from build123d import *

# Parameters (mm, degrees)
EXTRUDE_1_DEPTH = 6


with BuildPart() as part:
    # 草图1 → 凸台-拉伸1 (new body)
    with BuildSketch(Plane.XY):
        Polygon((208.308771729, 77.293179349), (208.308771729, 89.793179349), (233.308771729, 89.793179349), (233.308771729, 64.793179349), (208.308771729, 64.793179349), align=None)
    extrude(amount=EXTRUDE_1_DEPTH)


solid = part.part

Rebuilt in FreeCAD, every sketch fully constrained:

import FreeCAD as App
import Part
import Sketcher
from FreeCAD import Vector
Q = App.Units.Quantity

doc = App.newDocument("Part")
params = doc.addObject("Spreadsheet::Sheet", "Params")
for row, (alias, value) in enumerate([
    ("sketch1_width", "25 mm"),
    ("pad1_length", "6 mm"),
], start=1):
    params.set(f"A{row}", alias)
    params.set(f"B{row}", "=" + value)
    params.setAlias(f"B{row}", alias)

body = doc.addObject("PartDesign::Body", "Body")

# Sketch on XY plane
sketch1 = body.newObject("Sketcher::SketchObject", "Sketch")
sketch1.AttachmentSupport = (doc.getObject("XY_Plane"), [""])
sketch1.MapMode = "FlatFace"
sketch1.addGeometry(Part.LineSegment(Vector(208, 90, 0), Vector(208, 65, 0)), False)
sketch1.addGeometry(Part.LineSegment(Vector(208, 65, 0), Vector(233, 65, 0)), False)
sketch1.addGeometry(Part.LineSegment(Vector(233, 65, 0), Vector(233, 90, 0)), False)
sketch1.addGeometry(Part.LineSegment(Vector(233, 90, 0), Vector(208, 90, 0)), False)
sketch1.addConstraint(Sketcher.Constraint("Coincident", 0, 2, 1, 1))
sketch1.addConstraint(Sketcher.Constraint("Coincident", 1, 2, 2, 1))
sketch1.addConstraint(Sketcher.Constraint("Coincident", 2, 2, 3, 1))
sketch1.addConstraint(Sketcher.Constraint("Coincident", 3, 2, 0, 1))
sketch1.addConstraint(Sketcher.Constraint("Vertical", 0))
sketch1.addConstraint(Sketcher.Constraint("Horizontal", 1))
sketch1.addConstraint(Sketcher.Constraint("Vertical", 2))
sketch1.addConstraint(Sketcher.Constraint("Horizontal", 3))
sketch1.addConstraint(Sketcher.Constraint("Equal", 3, 0))
sketch1.addConstraint(Sketcher.Constraint("DistanceX", 1, 1, 1, 2, Q("25 mm")))
sketch1.addConstraint(Sketcher.Constraint("DistanceX", -1, 1, 0, 2, Q("208.308772 mm")))
sketch1.addConstraint(Sketcher.Constraint("DistanceY", -1, 1, 0, 2, Q("64.793179 mm")))
sketch1.setExpression("Constraints[9]", "Params.sketch1_width")
pad1 = body.newObject("PartDesign::Pad", "Pad")
pad1.Profile = sketch1
pad1.setExpression("Length", "Params.pad1_length")

doc.recompute()
